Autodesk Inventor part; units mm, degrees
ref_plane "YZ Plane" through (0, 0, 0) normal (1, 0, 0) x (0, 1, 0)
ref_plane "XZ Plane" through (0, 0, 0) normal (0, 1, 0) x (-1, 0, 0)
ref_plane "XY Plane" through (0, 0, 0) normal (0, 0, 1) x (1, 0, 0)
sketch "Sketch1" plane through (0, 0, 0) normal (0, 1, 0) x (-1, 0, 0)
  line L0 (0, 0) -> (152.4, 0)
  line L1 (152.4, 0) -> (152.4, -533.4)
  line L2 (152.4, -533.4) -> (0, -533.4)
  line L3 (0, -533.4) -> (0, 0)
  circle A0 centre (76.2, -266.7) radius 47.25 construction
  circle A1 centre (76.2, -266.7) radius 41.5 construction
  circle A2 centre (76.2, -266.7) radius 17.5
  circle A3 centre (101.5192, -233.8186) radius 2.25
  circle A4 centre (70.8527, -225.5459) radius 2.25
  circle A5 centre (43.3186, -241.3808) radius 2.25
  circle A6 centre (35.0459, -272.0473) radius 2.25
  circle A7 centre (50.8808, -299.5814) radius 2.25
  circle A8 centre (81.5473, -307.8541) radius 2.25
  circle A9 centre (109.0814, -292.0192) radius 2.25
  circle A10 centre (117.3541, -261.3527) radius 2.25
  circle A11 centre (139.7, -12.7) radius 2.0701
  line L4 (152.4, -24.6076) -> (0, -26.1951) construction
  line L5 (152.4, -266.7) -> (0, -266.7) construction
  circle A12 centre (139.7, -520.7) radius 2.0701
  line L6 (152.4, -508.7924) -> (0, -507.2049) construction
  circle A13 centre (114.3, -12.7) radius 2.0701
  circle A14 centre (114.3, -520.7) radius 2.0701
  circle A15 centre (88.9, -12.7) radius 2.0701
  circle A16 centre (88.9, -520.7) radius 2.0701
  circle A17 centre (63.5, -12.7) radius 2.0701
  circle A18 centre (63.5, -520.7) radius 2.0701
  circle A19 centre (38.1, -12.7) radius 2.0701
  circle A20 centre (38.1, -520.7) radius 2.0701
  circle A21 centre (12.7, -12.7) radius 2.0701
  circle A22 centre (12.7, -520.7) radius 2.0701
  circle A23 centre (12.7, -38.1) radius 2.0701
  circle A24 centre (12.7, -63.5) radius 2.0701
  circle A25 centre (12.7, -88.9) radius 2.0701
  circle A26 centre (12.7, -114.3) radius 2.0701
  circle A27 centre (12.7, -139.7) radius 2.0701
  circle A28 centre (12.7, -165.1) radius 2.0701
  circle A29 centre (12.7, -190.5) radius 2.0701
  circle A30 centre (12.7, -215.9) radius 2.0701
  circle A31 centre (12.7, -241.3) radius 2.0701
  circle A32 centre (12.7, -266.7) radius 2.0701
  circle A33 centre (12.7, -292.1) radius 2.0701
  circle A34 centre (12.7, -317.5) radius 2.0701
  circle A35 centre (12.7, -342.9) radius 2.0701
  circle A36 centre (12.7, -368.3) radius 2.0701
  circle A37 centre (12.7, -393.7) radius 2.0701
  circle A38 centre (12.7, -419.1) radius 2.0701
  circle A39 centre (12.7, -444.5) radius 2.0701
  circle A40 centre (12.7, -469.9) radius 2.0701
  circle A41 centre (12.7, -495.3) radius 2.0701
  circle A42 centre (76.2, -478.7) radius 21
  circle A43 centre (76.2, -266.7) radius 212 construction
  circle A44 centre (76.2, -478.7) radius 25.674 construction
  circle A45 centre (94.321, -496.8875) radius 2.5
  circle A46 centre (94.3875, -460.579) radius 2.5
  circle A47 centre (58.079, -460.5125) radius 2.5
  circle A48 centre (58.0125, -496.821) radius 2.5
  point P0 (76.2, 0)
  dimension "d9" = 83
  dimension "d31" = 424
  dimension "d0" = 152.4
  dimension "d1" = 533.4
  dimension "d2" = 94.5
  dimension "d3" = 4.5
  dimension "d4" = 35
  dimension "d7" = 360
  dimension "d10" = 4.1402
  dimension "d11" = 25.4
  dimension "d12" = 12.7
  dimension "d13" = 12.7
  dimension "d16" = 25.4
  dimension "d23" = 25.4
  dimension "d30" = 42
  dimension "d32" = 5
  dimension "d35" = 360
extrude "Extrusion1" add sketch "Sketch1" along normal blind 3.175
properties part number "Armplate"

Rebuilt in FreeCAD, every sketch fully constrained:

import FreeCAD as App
import Part
import Sketcher

V = App.Vector

doc = App.newDocument("Part")
body = doc.addObject("PartDesign::Body", "Body")

# Sketch on XZ plane
sketch1 = body.newObject("Sketcher::SketchObject", "Sketch")
sketch1.AttachmentSupport = (doc.getObject("XZ_Plane"), [""])
sketch1.MapMode = "FlatFace"
sketch1.addGeometry(Part.LineSegment(V(-152.4, 0, 0), V(0, 0, 0)), False)
sketch1.addGeometry(Part.LineSegment(V(0, 0, 0), V(0, -533.4, 0)), False)
sketch1.addGeometry(Part.LineSegment(V(0, -533.4, 0), V(-152.4, -533.4, 0)), False)
sketch1.addGeometry(Part.LineSegment(V(-152.4, -533.4, 0), V(-152.4, 0, 0)), False)
sketch1.addGeometry(Part.Circle(V(-12.7, -520.7, 0), V(0, 0, 1), 2.1), False)
sketch1.addGeometry(Part.Circle(V(-12.7, -495.3, 0), V(0, 0, 1), 2.1), False)
sketch1.addGeometry(Part.Circle(V(-12.7, -469.9, 0), V(0, 0, 1), 2.1), False)
sketch1.addGeometry(Part.Circle(V(-12.7, -444.5, 0), V(0, 0, 1), 2.1), False)
sketch1.addGeometry(Part.Circle(V(-12.7, -419.1, 0), V(0, 0, 1), 2.1), False)
sketch1.addGeometry(Part.Circle(V(-38.1, -520.7, 0), V(0, 0, 1), 2.1), False)
sketch1.addGeometry(Part.Circle(V(-63.5, -520.7, 0), V(0, 0, 1), 2.1), False)
sketch1.addGeometry(Part.Circle(V(-58, -496.8, 0), V(0, 0, 1), 2.5), False)
sketch1.addGeometry(Part.Circle(V(-58.1, -460.5, 0), V(0, 0, 1), 2.5), False)
sketch1.addGeometry(Part.Circle(V(-12.7, -393.7, 0), V(0, 0, 1), 2.1), False)
sketch1.addGeometry(Part.Circle(V(-12.7, -368.3, 0), V(0, 0, 1), 2.1), False)
sketch1.addGeometry(Part.Circle(V(-12.7, -342.9, 0), V(0, 0, 1), 2.1), False)
sketch1.addGeometry(Part.Circle(V(-12.7, -317.5, 0), V(0, 0, 1), 2.1), False)
sketch1.addGeometry(Part.Circle(V(-12.7, -292.1, 0), V(0, 0, 1), 2.1), False)
sketch1.addGeometry(Part.Circle(V(-35, -272, 0), V(0, 0, 1), 2.2), False)
sketch1.addGeometry(Part.Circle(V(-50.9, -299.6, 0), V(0, 0, 1), 2.2), False)
sketch1.addGeometry(Part.Circle(V(-88.9, -520.7, 0), V(0, 0, 1), 2.1), False)
sketch1.addGeometry(Part.Circle(V(-76.2, -478.7, 0), V(0, 0, 1), 21), False)
sketch1.addGeometry(Part.Circle(V(-94.3, -496.9, 0), V(0, 0, 1), 2.5), False)
sketch1.addGeometry(Part.Circle(V(-94.4, -460.6, 0), V(0, 0, 1), 2.5), False)
sketch1.addGeometry(Part.Circle(V(-114.3, -520.7, 0), V(0, 0, 1), 2.1), False)
sketch1.addGeometry(Part.Circle(V(-139.7, -520.7, 0), V(0, 0, 1), 2.1), False)
sketch1.addGeometry(Part.Circle(V(-81.5, -307.9, 0), V(0, 0, 1), 2.2), False)
sketch1.addGeometry(Part.Circle(V(-109.1, -292, 0), V(0, 0, 1), 2.2), False)
sketch1.addGeometry(Part.Circle(V(-12.7, -266.7, 0), V(0, 0, 1), 2.1), False)
sketch1.addGeometry(Part.Circle(V(-12.7, -241.3, 0), V(0, 0, 1), 2.1), False)
sketch1.addGeometry(Part.Circle(V(-12.7, -215.9, 0), V(0, 0, 1), 2.1), False)
sketch1.addGeometry(Part.Circle(V(-12.7, -190.5, 0), V(0, 0, 1), 2.1), False)
sketch1.addGeometry(Part.Circle(V(-12.7, -165.1, 0), V(0, 0, 1), 2.1), False)
sketch1.addGeometry(Part.Circle(V(-12.7, -139.7, 0), V(0, 0, 1), 2.1), False)
sketch1.addGeometry(Part.Circle(V(-43.3, -241.4, 0), V(0, 0, 1), 2.2), False)
sketch1.addGeometry(Part.Circle(V(-70.9, -225.5, 0), V(0, 0, 1), 2.2), False)
sketch1.addGeometry(Part.Circle(V(-12.7, -114.3, 0), V(0, 0, 1), 2.1), False)
sketch1.addGeometry(Part.Circle(V(-12.7, -88.9, 0), V(0, 0, 1), 2.1), False)
sketch1.addGeometry(Part.Circle(V(-12.7, -63.5, 0), V(0, 0, 1), 2.1), False)
sketch1.addGeometry(Part.Circle(V(-12.7, -38.1, 0), V(0, 0, 1), 2.1), False)
sketch1.addGeometry(Part.Circle(V(-12.7, -12.7, 0), V(0, 0, 1), 2.1), False)
sketch1.addGeometry(Part.Circle(V(-38.1, -12.7, 0), V(0, 0, 1), 2.1), False)
sketch1.addGeometry(Part.Circle(V(-63.5, -12.7, 0), V(0, 0, 1), 2.1), False)
sketch1.addGeometry(Part.Circle(V(-76.2, -266.7, 0), V(0, 0, 1), 17.5), False)
sketch1.addGeometry(Part.Circle(V(-101.5, -233.8, 0), V(0, 0, 1), 2.2), False)
sketch1.addGeometry(Part.Circle(V(-117.4, -261.4, 0), V(0, 0, 1), 2.2), False)
sketch1.addGeometry(Part.Circle(V(-88.9, -12.7, 0), V(0, 0, 1), 2.1), False)
sketch1.addGeometry(Part.Circle(V(-114.3, -12.7, 0), V(0, 0, 1), 2.1), False)
sketch1.addGeometry(Part.Circle(V(-139.7, -12.7, 0), V(0, 0, 1), 2.1), False)
sketch1.addConstraint(Sketcher.Constraint("Coincident", 0, 2, 1, 1))
sketch1.addConstraint(Sketcher.Constraint("Coincident", 1, 2, 2, 1))
sketch1.addConstraint(Sketcher.Constraint("Coincident", 2, 2, 3, 1))
sketch1.addConstraint(Sketcher.Constraint("Coincident", 3, 2, 0, 1))
sketch1.addConstraint(Sketcher.Constraint("Horizontal", 0))
sketch1.addConstraint(Sketcher.Constraint("Vertical", 1))
sketch1.addConstraint(Sketcher.Constraint("Horizontal", 2))
sketch1.addConstraint(Sketcher.Constraint("Vertical", 3))
sketch1.addConstraint(Sketcher.Constraint("Coincident", 0, 2, -1, 1))
sketch1.addConstraint(Sketcher.Constraint("Equal", 4, 5))
sketch1.addConstraint(Sketcher.Constraint("Equal", 5, 6))
sketch1.addConstraint(Sketcher.Constraint("Equal", 6, 7))
sketch1.addConstraint(Sketcher.Constraint("Equal", 7, 8))
sketch1.addConstraint(Sketcher.Constraint("Equal", 8, 9))
sketch1.addConstraint(Sketcher.Constraint("Equal", 9, 10))
sketch1.addConstraint(Sketcher.Constraint("Equal", 11, 12))
sketch1.addConstraint(Sketcher.Constraint("Equal", 10, 13))
sketch1.addConstraint(Sketcher.Constraint("Equal", 13, 14))
sketch1.addConstraint(Sketcher.Constraint("Equal", 14, 15))
sketch1.addConstraint(Sketcher.Constraint("Equal", 15, 16))
sketch1.addConstraint(Sketcher.Constraint("Equal", 16, 17))
sketch1.addConstraint(Sketcher.Constraint("Equal", 18, 19))
sketch1.addConstraint(Sketcher.Constraint("Equal", 17, 20))
sketch1.addConstraint(Sketcher.Constraint("Equal", 12, 22))
sketch1.addConstraint(Sketcher.Constraint("Equal", 22, 23))
sketch1.addConstraint(Sketcher.Constraint("Equal", 20, 24))
sketch1.addConstraint(Sketcher.Constraint("Equal", 24, 25))
sketch1.addConstraint(Sketcher.Constraint("Equal", 19, 26))
sketch1.addConstraint(Sketcher.Constraint("Equal", 26, 27))
sketch1.addConstraint(Sketcher.Constraint("Equal", 25, 28))
sketch1.addConstraint(Sketcher.Constraint("Equal", 28, 29))
sketch1.addConstraint(Sketcher.Constraint("Equal", 29, 30))
sketch1.addConstraint(Sketcher.Constraint("Equal", 30, 31))
sketch1.addConstraint(Sketcher.Constraint("Equal", 31, 32))
sketch1.addConstraint(Sketcher.Constraint("Equal", 32, 33))
sketch1.addConstraint(Sketcher.Constraint("Equal", 27, 34))
sketch1.addConstraint(Sketcher.Constraint("Equal", 34, 35))
sketch1.addConstraint(Sketcher.Constraint("Equal", 33, 36))
sketch1.addConstraint(Sketcher.Constraint("Equal", 36, 37))
sketch1.addConstraint(Sketcher.Constraint("Equal", 37, 38))
sketch1.addConstraint(Sketcher.Constraint("Equal", 38, 39))
sketch1.addConstraint(Sketcher.Constraint("Equal", 39, 40))
sketch1.addConstraint(Sketcher.Constraint("Equal", 40, 41))
sketch1.addConstraint(Sketcher.Constraint("Equal", 41, 42))
sketch1.addConstraint(Sketcher.Constraint("Equal", 35, 44))
sketch1.addConstraint(Sketcher.Constraint("Equal", 44, 45))
sketch1.addConstraint(Sketcher.Constraint("Equal", 42, 46))
sketch1.addConstraint(Sketcher.Constraint("Equal", 46, 47))
sketch1.addConstraint(Sketcher.Constraint("Equal", 47, 48))
sketch1.addConstraint(Sketcher.Constraint("Horizontal", 4, 3, 9, 3))
sketch1.addConstraint(Sketcher.Constraint("Horizontal", 9, 3, 10, 3))
sketch1.addConstraint(Sketcher.Constraint("Horizontal", 10, 3, 20, 3))
sketch1.addConstraint(Sketcher.Constraint("Horizontal", 20, 3, 24, 3))
sketch1.addConstraint(Sketcher.Constraint("Horizontal", 24, 3, 25, 3))
sketch1.addConstraint(Sketcher.Constraint("Horizontal", 40, 3, 41, 3))
sketch1.addConstraint(Sketcher.Constraint("Horizontal", 41, 3, 42, 3))
sketch1.addConstraint(Sketcher.Constraint("Horizontal", 28, 3, 43, 3))
sketch1.addConstraint(Sketcher.Constraint("Horizontal", 42, 3, 46, 3))
sketch1.addConstraint(Sketcher.Constraint("Horizontal", 46, 3, 47, 3))
sketch1.addConstraint(Sketcher.Constraint("Horizontal", 47, 3, 48, 3))
sketch1.addConstraint(Sketcher.Constraint("Vertical", 4, 3, 5, 3))
sketch1.addConstraint(Sketcher.Constraint("Vertical", 5, 3, 6, 3))
sketch1.addConstraint(Sketcher.Constraint("Vertical", 6, 3, 7, 3))
sketch1.addConstraint(Sketcher.Constraint("Vertical", 7, 3, 8, 3))
sketch1.addConstraint(Sketcher.Constraint("Vertical", 8, 3, 13, 3))
sketch1.addConstraint(Sketcher.Constraint("Vertical", 13, 3, 14, 3))
sketch1.addConstraint(Sketcher.Constraint("Vertical", 14, 3, 15, 3))
sketch1.addConstraint(Sketcher.Constraint("Vertical", 15, 3, 16, 3))
sketch1.addConstraint(Sketcher.Constraint("Vertical", 16, 3, 17, 3))
sketch1.addConstraint(Sketcher.Constraint("Vertical", 17, 3, 28, 3))
sketch1.addConstraint(Sketcher.Constraint("Vertical", 28, 3, 29, 3))
sketch1.addConstraint(Sketcher.Constraint("Vertical", 29, 3, 30, 3))
sketch1.addConstraint(Sketcher.Constraint("Vertical", 30, 3, 31, 3))
sketch1.addConstraint(Sketcher.Constraint("Vertical", 31, 3, 32, 3))
sketch1.addConstraint(Sketcher.Constraint("Vertical", 32, 3, 33, 3))
sketch1.addConstraint(Sketcher.Constraint("Vertical", 33, 3, 36, 3))
sketch1.addConstraint(Sketcher.Constraint("Vertical", 36, 3, 37, 3))
sketch1.addConstraint(Sketcher.Constraint("Vertical", 37, 3, 38, 3))
sketch1.addConstraint(Sketcher.Constraint("Vertical", 38, 3, 39, 3))
sketch1.addConstraint(Sketcher.Constraint("Vertical", 39, 3, 40, 3))
sketch1.addConstraint(Sketcher.Constraint("Vertical", 9, 3, 41, 3))
sketch1.addConstraint(Sketcher.Constraint("Vertical", 10, 3, 42, 3))
sketch1.addConstraint(Sketcher.Constraint("Vertical", 21, 3, 43, 3))
sketch1.addConstraint(Sketcher.Constraint("Vertical", 20, 3, 46, 3))
sketch1.addConstraint(Sketcher.Constraint("Vertical", 24, 3, 47, 3))
sketch1.addConstraint(Sketcher.Constraint("Vertical", 25, 3, 48, 3))
sketch1.addConstraint(Sketcher.Constraint("Diameter", 11, 5.0))
sketch1.addConstraint(Sketcher.Constraint("Diameter", 21, 42.0))
sketch1.addConstraint(Sketcher.Constraint("Diameter", 43, 35.0))
sketch1.addConstraint(Sketcher.Constraint("Diameter", 18, 4.5))
sketch1.addConstraint(Sketcher.Constraint("DistanceX", 0, 1, 0, 2, 152.4))
sketch1.addConstraint(Sketcher.Constraint("DistanceY", 1, 2, 1, 1, 533.4))
sketch1.addConstraint(Sketcher.Constraint("DistanceY", 10, 3, 21, 3, 42.0))
sketch1.addConstraint(Sketcher.Constraint("Diameter", 4, 4.1402))
sketch1.addConstraint(Sketcher.Constraint("DistanceX", 4, 3, -1, 1, 12.7))
sketch1.addConstraint(Sketcher.Constraint("DistanceY", 40, 3, -1, 1, 12.7))
sketch1.addConstraint(Sketcher.Constraint("DistanceY", 4, 3, 5, 3, 25.4))
sketch1.addConstraint(Sketcher.Constraint("DistanceY", 5, 3, 6, 3, 25.4))
sketch1.addConstraint(Sketcher.Constraint("DistanceY", 6, 3, 7, 3, 25.4))
sketch1.addConstraint(Sketcher.Constraint("DistanceY", 7, 3, 8, 3, 25.4))
sketch1.addConstraint(Sketcher.Constraint("DistanceX", 9, 3, 4, 3, 25.4))
sketch1.addConstraint(Sketcher.Constraint("DistanceX", 10, 3, 9, 3, 25.4))
sketch1.addConstraint(Sketcher.Constraint("DistanceY", 8, 3, 13, 3, 25.4))
sketch1.addConstraint(Sketcher.Constraint("DistanceY", 13, 3, 14, 3, 25.4))
sketch1.addConstraint(Sketcher.Constraint("DistanceY", 14, 3, 15, 3, 25.4))
sketch1.addConstraint(Sketcher.Constraint("DistanceY", 15, 3, 16, 3, 25.4))
sketch1.addConstraint(Sketcher.Constraint("DistanceY", 16, 3, 17, 3, 25.4))
sketch1.addConstraint(Sketcher.Constraint("DistanceX", 20, 3, 10, 3, 25.4))
sketch1.addConstraint(Sketcher.Constraint("DistanceX", 21, 3, 10, 3, 12.7))
sketch1.addConstraint(Sketcher.Constraint("DistanceX", 24, 3, 20, 3, 25.4))
sketch1.addConstraint(Sketcher.Constraint("DistanceX", 25, 3, 24, 3, 25.4))
sketch1.addConstraint(Sketcher.Constraint("DistanceY", 17, 3, 28, 3, 25.4))
sketch1.addConstraint(Sketcher.Constraint("DistanceY", 28, 3, 29, 3, 25.4))
sketch1.addConstraint(Sketcher.Constraint("DistanceY", 29, 3, 30, 3, 25.4))
sketch1.addConstraint(Sketcher.Constraint("DistanceY", 30, 3, 31, 3, 25.4))
sketch1.addConstraint(Sketcher.Constraint("DistanceY", 31, 3, 32, 3, 25.4))
sketch1.addConstraint(Sketcher.Constraint("DistanceY", 32, 3, 33, 3, 25.4))
sketch1.addConstraint(Sketcher.Constraint("DistanceY", 33, 3, 36, 3, 25.4))
sketch1.addConstraint(Sketcher.Constraint("DistanceY", 36, 3, 37, 3, 25.4))
sketch1.addConstraint(Sketcher.Constraint("DistanceY", 37, 3, 38, 3, 25.4))
sketch1.addConstraint(Sketcher.Constraint("DistanceY", 38, 3, 39, 3, 25.4))
sketch1.addConstraint(Sketcher.Constraint("DistanceY", 39, 3, 40, 3, 25.4))
sketch1.addConstraint(Sketcher.Constraint("DistanceY", 11, 3, -1, 1, 496.821))
sketch1.addConstraint(Sketcher.Constraint("DistanceX", 12, 3, -1, 1, 58.079))
sketch1.addConstraint(Sketcher.Constraint("DistanceX", 18, 3, -1, 1, 35.046))
sketch1.addConstraint(Sketcher.Constraint("DistanceX", 22, 3, -1, 1, 94.321))
sketch1.addConstraint(Sketcher.Constraint("DistanceY", 23, 3, -1, 1, 460.579))
sketch1.addConstraint(Sketcher.Constraint("DistanceY", 26, 3, -1, 1, 307.854))
sketch1.addConstraint(Sketcher.Constraint("DistanceY", 35, 3, -1, 1, 225.546))
sketch1.addConstraint(Sketcher.Constraint("DistanceX", 45, 3, -1, 1, 117.354))
sketch1.addConstraint(Sketcher.Constraint("DistanceX", 19, 3, 18, 3, 15.835))
sketch1.addConstraint(Sketcher.Constraint("DistanceY", 19, 3, 18, 3, 27.534))
sketch1.addConstraint(Sketcher.Constraint("DistanceY", 22, 3, 12, 3, 36.375))
sketch1.addConstraint(Sketcher.Constraint("DistanceX", 23, 3, 11, 3, 36.375))
sketch1.addConstraint(Sketcher.Constraint("DistanceX", 27, 3, 26, 3, 27.534))
sketch1.addConstraint(Sketcher.Constraint("DistanceY", 26, 3, 27, 3, 15.835))
sketch1.addConstraint(Sketcher.Constraint("DistanceY", 27, 3, 18, 3, 19.972))
sketch1.addConstraint(Sketcher.Constraint("DistanceX", 35, 3, 34, 3, 27.534))
sketch1.addConstraint(Sketcher.Constraint("DistanceY", 34, 3, 35, 3, 15.835))
sketch1.addConstraint(Sketcher.Constraint("DistanceX", 44, 3, 26, 3, 19.972))
sketch1.addConstraint(Sketcher.Constraint("DistanceX", 45, 3, 44, 3, 15.835))
sketch1.addConstraint(Sketcher.Constraint("DistanceY", 45, 3, 44, 3, 27.534))
sketch1.addConstraint(Sketcher.Constraint("DistanceX", 11, 3, -1, 1, 58.0125))
sketch1.addConstraint(Sketcher.Constraint("DistanceY", 12, 3, -1, 1, 460.5125))
sketch1.addConstraint(Sketcher.Constraint("DistanceX", 34, 3, -1, 1, 43.3186))
sketch1.addConstraint(Sketcher.Constraint("DistanceY", 44, 3, -1, 1, 233.8186))
pad1 = body.newObject("PartDesign::Pad", "Pad")
pad1.Profile = sketch1
pad1.Length = 3.175
pad1.Reversed = True

doc.recompute()
